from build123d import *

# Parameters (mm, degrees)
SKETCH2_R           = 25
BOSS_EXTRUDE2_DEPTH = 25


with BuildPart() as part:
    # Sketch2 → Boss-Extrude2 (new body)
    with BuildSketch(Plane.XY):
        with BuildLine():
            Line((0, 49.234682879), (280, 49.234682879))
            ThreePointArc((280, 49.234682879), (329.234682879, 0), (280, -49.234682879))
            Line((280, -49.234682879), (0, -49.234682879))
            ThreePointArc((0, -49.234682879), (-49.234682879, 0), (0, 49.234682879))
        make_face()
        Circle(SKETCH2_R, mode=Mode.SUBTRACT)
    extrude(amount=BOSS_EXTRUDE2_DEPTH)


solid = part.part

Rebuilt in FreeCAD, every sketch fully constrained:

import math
import FreeCAD as App
import Part
import Sketcher
Q = App.Units.Quantity

doc = App.newDocument("Part")
body = doc.addObject("PartDesign::Body", "Body")

# Sketch on XY plane
sketch1 = body.newObject("Sketcher::SketchObject", "Sketch")
sketch1.AttachmentSupport = (doc.getObject("XY_Plane"), [""])
sketch1.MapMode = "FlatFace"
sketch1.addGeometry(Part.LineSegment(App.Vector(280, 49, 0), App.Vector(0, 49, 0)), False)
sketch1.addGeometry(Part.ArcOfCircle(Part.Circle(App.Vector(0, 0, 0), App.Vector(0, 0, 1), 49), math.radians(90), math.radians(270)), False)
sketch1.addGeometry(Part.LineSegment(App.Vector(0, -49, 0), App.Vector(280, -49, 0)), False)
sketch1.addGeometry(Part.ArcOfCircle(Part.Circle(App.Vector(280, 0, 0), App.Vector(0, 0, 1), 49), math.radians(-90), math.radians(90)), False)
sketch1.addGeometry(Part.Circle(App.Vector(0, 0, 0), App.Vector(0, 0, 1), 25), False)
sketch1.addConstraint(Sketcher.Constraint("Tangent", 0, 2, 1, 1))
sketch1.addConstraint(Sketcher.Constraint("Tangent", 1, 2, 2, 1))
sketch1.addConstraint(Sketcher.Constraint("Tangent", 2, 2, 3, 1))
sketch1.addConstraint(Sketcher.Constraint("Tangent", 3, 2, 0, 1))
sketch1.addConstraint(Sketcher.Constraint("Horizontal", 0))
sketch1.addConstraint(Sketcher.Constraint("Horizontal", 2))
sketch1.addConstraint(Sketcher.Constraint("Coincident", 1, 3, -1, 1))
sketch1.addConstraint(Sketcher.Constraint("Coincident", 4, 3, -1, 1))
sketch1.addConstraint(Sketcher.Constraint("Diameter", 4, Q("50 mm")))
sketch1.addConstraint(Sketcher.Constraint("DistanceX", 0, 2, 0, 1, Q("280 mm")))
sketch1.addConstraint(Sketcher.Constraint("Radius", 1, Q("49.234683 mm")))
pad1 = body.newObject("PartDesign::Pad", "Pad")
pad1.Profile = sketch1
pad1.Length = 25

doc.recompute()
